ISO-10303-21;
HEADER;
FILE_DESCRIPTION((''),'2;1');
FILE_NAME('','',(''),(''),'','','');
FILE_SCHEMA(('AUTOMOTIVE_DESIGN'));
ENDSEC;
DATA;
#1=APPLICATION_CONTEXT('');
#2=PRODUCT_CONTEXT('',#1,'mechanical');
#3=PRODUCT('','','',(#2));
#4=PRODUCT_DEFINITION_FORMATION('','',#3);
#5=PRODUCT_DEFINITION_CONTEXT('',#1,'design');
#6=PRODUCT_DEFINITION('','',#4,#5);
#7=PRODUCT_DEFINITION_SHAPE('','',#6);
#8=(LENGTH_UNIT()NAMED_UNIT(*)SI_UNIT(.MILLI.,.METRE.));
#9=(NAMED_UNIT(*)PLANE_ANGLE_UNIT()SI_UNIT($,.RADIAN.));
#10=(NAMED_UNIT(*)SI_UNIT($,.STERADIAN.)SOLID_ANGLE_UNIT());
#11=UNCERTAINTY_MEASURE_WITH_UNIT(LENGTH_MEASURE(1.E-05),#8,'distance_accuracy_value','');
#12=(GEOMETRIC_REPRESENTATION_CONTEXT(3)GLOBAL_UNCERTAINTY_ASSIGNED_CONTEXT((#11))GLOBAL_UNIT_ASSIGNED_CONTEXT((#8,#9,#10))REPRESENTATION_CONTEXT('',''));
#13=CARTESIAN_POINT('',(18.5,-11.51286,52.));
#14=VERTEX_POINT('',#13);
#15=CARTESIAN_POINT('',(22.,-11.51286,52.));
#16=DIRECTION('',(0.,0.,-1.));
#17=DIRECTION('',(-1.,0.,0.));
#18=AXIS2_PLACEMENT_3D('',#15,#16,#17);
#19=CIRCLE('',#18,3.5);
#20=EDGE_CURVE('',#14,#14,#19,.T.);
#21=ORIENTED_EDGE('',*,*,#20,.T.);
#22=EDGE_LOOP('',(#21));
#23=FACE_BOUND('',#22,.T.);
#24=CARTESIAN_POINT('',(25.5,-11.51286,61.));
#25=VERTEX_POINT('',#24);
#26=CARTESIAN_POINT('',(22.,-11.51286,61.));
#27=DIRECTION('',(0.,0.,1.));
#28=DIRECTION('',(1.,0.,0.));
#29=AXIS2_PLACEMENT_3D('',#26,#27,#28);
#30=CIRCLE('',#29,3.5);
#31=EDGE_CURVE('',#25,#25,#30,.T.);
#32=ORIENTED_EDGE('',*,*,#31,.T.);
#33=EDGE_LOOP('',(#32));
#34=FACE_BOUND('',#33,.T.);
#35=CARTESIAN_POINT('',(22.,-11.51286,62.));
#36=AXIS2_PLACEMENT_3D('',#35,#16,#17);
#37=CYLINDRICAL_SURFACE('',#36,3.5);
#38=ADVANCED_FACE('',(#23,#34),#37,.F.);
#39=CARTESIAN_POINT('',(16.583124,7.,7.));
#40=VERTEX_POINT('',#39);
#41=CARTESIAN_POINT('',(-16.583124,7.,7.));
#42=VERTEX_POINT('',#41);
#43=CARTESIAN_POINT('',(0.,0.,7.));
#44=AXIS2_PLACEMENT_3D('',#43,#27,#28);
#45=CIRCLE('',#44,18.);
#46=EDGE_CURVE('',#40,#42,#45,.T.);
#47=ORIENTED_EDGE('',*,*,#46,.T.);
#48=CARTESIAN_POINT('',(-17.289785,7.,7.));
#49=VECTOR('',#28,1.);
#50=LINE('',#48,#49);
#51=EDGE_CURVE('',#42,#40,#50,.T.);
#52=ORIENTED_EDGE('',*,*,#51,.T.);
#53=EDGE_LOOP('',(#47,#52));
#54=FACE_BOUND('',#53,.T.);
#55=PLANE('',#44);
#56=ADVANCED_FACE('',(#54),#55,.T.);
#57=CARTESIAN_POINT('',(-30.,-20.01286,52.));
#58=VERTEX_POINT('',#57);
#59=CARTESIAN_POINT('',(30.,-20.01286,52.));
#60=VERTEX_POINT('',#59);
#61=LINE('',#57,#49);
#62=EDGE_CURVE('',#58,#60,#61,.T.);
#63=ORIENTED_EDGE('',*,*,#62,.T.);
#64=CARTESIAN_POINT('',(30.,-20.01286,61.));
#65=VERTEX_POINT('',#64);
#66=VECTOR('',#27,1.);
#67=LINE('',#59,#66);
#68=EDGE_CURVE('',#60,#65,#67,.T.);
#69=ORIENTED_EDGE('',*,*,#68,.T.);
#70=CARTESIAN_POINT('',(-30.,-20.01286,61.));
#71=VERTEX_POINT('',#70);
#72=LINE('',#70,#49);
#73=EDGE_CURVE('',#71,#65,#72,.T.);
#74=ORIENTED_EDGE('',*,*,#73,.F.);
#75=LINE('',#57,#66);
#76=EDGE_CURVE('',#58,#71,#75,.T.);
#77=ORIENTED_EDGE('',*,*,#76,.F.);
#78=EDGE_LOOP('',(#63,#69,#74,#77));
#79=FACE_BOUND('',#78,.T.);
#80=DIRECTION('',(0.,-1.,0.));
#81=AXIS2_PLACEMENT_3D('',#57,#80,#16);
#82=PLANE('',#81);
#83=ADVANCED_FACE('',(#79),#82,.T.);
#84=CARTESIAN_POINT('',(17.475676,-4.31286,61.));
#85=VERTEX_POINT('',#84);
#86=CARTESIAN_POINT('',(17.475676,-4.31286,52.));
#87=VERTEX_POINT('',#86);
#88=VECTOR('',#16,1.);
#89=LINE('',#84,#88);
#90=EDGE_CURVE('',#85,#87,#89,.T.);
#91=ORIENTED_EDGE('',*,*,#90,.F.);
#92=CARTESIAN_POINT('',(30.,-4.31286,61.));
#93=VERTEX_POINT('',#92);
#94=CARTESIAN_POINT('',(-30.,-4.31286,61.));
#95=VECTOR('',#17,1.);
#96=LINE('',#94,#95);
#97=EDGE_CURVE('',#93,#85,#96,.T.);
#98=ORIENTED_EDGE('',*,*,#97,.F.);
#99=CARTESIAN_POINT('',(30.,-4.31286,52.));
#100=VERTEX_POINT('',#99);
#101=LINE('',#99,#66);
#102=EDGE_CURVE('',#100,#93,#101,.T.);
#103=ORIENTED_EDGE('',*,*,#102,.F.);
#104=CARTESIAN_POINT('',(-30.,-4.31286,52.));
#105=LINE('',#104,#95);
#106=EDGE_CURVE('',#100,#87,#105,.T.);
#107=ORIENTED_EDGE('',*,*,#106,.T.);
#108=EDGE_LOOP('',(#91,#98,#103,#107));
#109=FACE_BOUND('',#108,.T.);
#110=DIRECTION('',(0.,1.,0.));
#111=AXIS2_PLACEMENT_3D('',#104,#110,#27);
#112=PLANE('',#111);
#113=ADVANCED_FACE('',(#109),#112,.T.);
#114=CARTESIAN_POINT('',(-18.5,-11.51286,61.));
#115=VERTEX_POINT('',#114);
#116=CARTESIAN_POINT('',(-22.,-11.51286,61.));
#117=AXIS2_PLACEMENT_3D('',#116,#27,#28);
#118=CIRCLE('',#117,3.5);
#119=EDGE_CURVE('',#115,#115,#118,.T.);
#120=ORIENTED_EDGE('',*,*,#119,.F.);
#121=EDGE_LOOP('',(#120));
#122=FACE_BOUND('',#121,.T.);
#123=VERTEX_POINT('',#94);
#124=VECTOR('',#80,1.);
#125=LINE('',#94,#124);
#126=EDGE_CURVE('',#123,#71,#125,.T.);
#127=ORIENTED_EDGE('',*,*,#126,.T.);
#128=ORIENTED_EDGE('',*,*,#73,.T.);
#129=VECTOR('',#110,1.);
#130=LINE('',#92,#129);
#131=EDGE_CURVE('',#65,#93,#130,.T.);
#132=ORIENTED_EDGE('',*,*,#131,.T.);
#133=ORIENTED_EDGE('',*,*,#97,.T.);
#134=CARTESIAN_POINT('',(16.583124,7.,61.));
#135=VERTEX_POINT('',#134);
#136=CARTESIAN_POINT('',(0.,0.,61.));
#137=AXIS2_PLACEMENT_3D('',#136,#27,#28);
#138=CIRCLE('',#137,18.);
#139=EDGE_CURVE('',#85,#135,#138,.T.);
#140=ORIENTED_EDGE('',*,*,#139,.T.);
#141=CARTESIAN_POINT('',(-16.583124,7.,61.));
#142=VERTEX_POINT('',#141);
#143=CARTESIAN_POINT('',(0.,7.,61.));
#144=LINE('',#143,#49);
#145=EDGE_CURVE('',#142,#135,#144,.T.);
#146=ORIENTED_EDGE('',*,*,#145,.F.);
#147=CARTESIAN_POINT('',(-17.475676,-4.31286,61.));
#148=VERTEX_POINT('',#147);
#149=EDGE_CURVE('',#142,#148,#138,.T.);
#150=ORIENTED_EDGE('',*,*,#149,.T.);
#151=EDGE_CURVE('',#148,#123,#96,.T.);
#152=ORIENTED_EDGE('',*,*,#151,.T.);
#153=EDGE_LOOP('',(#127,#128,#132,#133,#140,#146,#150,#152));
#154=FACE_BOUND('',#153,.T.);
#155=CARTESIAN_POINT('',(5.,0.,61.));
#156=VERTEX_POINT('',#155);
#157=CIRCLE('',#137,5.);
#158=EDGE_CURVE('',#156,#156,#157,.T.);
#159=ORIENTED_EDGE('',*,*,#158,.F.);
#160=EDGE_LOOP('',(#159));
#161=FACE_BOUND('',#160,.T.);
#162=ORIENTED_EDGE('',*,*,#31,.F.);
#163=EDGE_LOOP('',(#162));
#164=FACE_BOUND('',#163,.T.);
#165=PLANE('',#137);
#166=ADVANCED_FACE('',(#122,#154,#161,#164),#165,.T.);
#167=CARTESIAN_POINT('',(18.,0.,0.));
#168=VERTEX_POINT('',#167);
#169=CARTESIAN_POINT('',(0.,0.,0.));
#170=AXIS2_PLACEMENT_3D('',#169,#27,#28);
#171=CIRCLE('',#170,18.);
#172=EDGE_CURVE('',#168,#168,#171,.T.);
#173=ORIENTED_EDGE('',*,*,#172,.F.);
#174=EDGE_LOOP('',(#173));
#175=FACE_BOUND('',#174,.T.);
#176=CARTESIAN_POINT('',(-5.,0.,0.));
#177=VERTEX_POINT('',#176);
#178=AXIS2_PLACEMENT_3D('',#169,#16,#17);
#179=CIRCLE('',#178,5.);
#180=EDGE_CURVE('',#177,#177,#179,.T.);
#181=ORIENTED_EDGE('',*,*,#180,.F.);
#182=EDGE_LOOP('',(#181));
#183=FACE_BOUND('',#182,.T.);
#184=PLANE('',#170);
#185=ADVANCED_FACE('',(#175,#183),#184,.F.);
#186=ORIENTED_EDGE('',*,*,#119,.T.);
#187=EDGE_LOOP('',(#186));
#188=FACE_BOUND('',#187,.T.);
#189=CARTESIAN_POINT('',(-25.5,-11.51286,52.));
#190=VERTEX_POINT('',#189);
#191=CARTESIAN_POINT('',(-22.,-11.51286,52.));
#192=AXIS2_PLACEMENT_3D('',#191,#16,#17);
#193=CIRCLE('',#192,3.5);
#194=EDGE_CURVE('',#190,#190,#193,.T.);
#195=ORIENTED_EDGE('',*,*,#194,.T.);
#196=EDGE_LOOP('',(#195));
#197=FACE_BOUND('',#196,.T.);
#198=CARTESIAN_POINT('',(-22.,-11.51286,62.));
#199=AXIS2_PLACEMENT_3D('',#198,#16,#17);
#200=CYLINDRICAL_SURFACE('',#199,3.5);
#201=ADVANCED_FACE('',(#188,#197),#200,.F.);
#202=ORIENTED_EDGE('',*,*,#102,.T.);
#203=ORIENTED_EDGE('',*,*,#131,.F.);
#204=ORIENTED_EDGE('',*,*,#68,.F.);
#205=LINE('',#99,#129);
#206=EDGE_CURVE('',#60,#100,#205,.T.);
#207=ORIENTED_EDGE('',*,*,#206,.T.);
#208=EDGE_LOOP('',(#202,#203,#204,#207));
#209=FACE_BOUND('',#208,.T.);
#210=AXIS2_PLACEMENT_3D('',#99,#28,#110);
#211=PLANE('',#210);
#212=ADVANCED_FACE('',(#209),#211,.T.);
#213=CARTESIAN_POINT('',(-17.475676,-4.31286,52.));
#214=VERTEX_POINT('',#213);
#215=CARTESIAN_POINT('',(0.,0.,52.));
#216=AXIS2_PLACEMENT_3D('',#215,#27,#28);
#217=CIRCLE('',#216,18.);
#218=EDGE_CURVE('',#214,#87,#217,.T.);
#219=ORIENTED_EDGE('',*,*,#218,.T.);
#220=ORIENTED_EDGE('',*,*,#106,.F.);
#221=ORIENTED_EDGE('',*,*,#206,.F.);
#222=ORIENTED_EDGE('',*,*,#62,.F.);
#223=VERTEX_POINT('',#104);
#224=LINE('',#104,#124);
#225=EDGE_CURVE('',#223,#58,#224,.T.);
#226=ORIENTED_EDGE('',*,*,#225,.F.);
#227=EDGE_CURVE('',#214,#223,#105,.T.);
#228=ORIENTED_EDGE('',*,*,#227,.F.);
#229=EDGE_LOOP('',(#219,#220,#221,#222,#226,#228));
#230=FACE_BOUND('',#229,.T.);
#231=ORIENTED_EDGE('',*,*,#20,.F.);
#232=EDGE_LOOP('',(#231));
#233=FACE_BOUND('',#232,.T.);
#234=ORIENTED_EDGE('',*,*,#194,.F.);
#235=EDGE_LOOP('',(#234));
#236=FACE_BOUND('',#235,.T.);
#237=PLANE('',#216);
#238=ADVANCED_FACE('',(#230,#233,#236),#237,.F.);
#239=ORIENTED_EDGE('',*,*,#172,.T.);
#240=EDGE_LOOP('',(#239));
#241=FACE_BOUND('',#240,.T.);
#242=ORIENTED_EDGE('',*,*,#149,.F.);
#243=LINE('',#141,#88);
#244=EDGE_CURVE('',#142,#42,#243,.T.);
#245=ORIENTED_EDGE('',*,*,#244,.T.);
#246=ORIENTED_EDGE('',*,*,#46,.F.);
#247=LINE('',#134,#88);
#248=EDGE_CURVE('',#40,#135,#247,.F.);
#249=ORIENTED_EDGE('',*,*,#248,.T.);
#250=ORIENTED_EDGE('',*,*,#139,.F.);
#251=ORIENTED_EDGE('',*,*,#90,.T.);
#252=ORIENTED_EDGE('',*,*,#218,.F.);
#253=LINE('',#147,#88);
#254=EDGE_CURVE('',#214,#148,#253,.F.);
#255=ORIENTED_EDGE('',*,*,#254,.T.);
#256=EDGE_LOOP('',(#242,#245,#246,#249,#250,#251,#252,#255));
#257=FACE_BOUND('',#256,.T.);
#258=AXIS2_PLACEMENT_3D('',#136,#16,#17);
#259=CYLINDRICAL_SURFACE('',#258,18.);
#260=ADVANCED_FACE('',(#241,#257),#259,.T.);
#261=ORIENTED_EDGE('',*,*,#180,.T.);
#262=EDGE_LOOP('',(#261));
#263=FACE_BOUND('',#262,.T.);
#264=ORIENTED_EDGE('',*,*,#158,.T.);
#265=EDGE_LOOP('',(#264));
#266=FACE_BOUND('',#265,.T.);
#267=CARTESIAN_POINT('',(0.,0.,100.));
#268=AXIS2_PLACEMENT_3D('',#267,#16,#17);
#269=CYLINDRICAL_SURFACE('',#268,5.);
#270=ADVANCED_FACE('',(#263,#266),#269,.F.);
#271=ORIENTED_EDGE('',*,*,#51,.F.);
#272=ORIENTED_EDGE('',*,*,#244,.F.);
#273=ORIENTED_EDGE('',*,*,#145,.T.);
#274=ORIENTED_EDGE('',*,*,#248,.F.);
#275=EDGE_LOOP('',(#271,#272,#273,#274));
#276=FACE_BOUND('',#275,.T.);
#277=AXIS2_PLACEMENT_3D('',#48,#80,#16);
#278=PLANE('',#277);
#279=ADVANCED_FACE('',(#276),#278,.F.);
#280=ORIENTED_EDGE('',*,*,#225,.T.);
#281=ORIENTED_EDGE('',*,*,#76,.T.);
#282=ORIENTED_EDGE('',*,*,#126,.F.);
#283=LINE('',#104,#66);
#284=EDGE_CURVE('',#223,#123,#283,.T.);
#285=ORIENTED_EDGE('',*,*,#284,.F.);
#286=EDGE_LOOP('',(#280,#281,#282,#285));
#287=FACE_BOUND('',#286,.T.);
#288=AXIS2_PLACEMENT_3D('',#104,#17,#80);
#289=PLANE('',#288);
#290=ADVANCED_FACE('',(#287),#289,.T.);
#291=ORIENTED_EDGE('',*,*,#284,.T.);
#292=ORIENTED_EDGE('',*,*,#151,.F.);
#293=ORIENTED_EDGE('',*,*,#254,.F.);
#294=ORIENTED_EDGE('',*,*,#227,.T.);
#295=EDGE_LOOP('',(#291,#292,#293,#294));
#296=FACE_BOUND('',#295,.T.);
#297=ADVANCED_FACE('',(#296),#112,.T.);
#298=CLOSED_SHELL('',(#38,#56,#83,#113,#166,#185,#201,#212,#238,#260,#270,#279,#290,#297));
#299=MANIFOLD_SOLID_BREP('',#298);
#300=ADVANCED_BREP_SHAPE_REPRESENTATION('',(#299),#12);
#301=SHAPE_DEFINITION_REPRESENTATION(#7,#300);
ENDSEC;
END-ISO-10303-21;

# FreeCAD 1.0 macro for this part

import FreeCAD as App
import Part
import Sketcher

V = App.Vector
Q = App.Units.Quantity


def add_polygon(sketch, points):
    """Adds a closed chain of lines whose ends are joined by coincident constraints."""
    first, n = sketch.GeometryCount, len(points)
    for a, b in zip(points, points[1:] + points[:1]):
        sketch.addGeometry(Part.LineSegment(App.Vector(*a, 0), App.Vector(*b, 0)), False)
    for i in range(n):
        sketch.addConstraint(Sketcher.Constraint("Coincident", first + i, 2, first + (i + 1) % n, 1))

doc = App.newDocument("Part")
body = doc.addObject("PartDesign::Body", "Body")

# Sketch on XY plane
sketch1 = doc.addObject("Sketcher::SketchObject", "Sketch")
body.addObject(sketch1)
sketch1.AttachmentSupport = (doc.XY_Plane, [""])
sketch1.MapMode = "FlatFace"
sketch1.addGeometry(Part.Circle(V(0, 0, 0), V(0, 0, 1), 18), False)
sketch1.addConstraint([
    Sketcher.Constraint("Coincident", 0, 3, -1, 1),
    Sketcher.Constraint("Diameter", 0, Q("36 mm")),
])
pad1 = doc.addObject("PartDesign::Pad", "Pad")
body.addObject(pad1)
pad1.Profile = sketch1
pad1.Length = 61

# Sketch on XY plane
sketch2 = doc.addObject("Sketcher::SketchObject", "Sketch001")
body.addObject(sketch2)
sketch2.AttachmentSupport = (doc.XY_Plane, [""])
sketch2.MapMode = "FlatFace"
sketch2.AttachmentOffset = App.Placement(V(0, 0, 61), App.Rotation())
add_polygon(sketch2, [(-17, 21), (-17, 7), (22, 7), (22, 21)])  # lines 0-3
sketch2.addConstraint([
    Sketcher.Constraint("Vertical", 0),
    Sketcher.Constraint("Horizontal", 1),
    Sketcher.Constraint("Vertical", 2),
    Sketcher.Constraint("Horizontal", 3),
    Sketcher.Constraint("DistanceY", -1, 1, 0, 2, Q("7 mm")),
    Sketcher.Constraint("DistanceY", 0, 2, 0, 1, Q("14.13044 mm")),
    Sketcher.Constraint("DistanceX", 1, 1, 1, 2, Q("39.528936 mm")),
    Sketcher.Constraint("DistanceX", -1, 1, 1, 2, Q("22.239151 mm")),
])
pocket1 = doc.addObject("PartDesign::Pocket", "Pocket")
body.addObject(pocket1)
pocket1.Profile = sketch2
pocket1.Length = 54

# Sketch on XY plane
sketch3 = doc.addObject("Sketcher::SketchObject", "Sketch002")
body.addObject(sketch3)
sketch3.AttachmentSupport = (doc.XY_Plane, [""])
sketch3.MapMode = "FlatFace"
sketch3.AttachmentOffset = App.Placement(V(0, 0, 61), App.Rotation())
add_polygon(sketch3, [(-30, -4), (-30, -20), (30, -20), (30, -4)])  # lines 0-3
sketch3.addConstraint([
    Sketcher.Constraint("Vertical", 0),
    Sketcher.Constraint("Horizontal", 1),
    Sketcher.Constraint("Vertical", 2),
    Sketcher.Constraint("Horizontal", 3),
    Sketcher.Constraint("DistanceX", 1, 1, 1, 2, Q("60 mm")),
    Sketcher.Constraint("DistanceY", 0, 2, 0, 1, Q("15.7 mm")),
    Sketcher.Constraint("DistanceX", 0, 2, -1, 1, Q("30 mm")),
    Sketcher.Constraint("DistanceY", 0, 2, -1, 1, Q("20.01286 mm")),
])
pad2 = doc.addObject("PartDesign::Pad", "Pad001")
body.addObject(pad2)
pad2.Profile = sketch3
pad2.Length = 9
pad2.Reversed = True

# Sketch on XY plane
sketch4 = doc.addObject("Sketcher::SketchObject", "Sketch003")
body.addObject(sketch4)
sketch4.AttachmentSupport = (doc.XY_Plane, [""])
sketch4.MapMode = "FlatFace"
sketch4.AttachmentOffset = App.Placement(V(0, 0, 52), App.Rotation())
sketch4.addGeometry(Part.Circle(V(22, -11.5, 0), V(0, 0, 1), 3.5), False)
sketch4.addConstraint([
    Sketcher.Constraint("Diameter", 0, Q("7 mm")),
    Sketcher.Constraint("DistanceX", -1, 1, 0, 3, Q("22 mm")),
    Sketcher.Constraint("DistanceY", 0, 3, -1, 1, Q("11.51286 mm")),
])
pocket2 = doc.addObject("PartDesign::Pocket", "Pocket001")
body.addObject(pocket2)
pocket2.Profile = sketch4
pocket2.Length = 10
pocket2.Reversed = True
doc.recompute()

linearpattern = doc.addObject("PartDesign::LinearPattern", "LinearPattern")
body.addObject(linearpattern)
linearpattern.Originals = [pocket2]
linearpattern.Direction = (doc.X_Axis, [""])
linearpattern.Mode = "offset"
linearpattern.Offset = 44
linearpattern.Occurrences = 2
linearpattern.Reversed = True
body.Tip = linearpattern

# Sketch on XY plane
sketch5 = doc.addObject("Sketcher::SketchObject", "Sketch004")
body.addObject(sketch5)
sketch5.AttachmentSupport = (doc.XY_Plane, [""])
sketch5.MapMode = "FlatFace"
sketch5.addGeometry(Part.Circle(V(0, 0, 0), V(0, 0, 1), 5), False)
sketch5.addConstraint([
    Sketcher.Constraint("Coincident", 0, 3, -1, 1),
    Sketcher.Constraint("Diameter", 0, Q("10 mm")),
])
pocket3 = doc.addObject("PartDesign::Pocket", "Pocket002")
body.addObject(pocket3)
pocket3.Profile = sketch5
pocket3.Length = 100
pocket3.Reversed = True

doc.recompute()
